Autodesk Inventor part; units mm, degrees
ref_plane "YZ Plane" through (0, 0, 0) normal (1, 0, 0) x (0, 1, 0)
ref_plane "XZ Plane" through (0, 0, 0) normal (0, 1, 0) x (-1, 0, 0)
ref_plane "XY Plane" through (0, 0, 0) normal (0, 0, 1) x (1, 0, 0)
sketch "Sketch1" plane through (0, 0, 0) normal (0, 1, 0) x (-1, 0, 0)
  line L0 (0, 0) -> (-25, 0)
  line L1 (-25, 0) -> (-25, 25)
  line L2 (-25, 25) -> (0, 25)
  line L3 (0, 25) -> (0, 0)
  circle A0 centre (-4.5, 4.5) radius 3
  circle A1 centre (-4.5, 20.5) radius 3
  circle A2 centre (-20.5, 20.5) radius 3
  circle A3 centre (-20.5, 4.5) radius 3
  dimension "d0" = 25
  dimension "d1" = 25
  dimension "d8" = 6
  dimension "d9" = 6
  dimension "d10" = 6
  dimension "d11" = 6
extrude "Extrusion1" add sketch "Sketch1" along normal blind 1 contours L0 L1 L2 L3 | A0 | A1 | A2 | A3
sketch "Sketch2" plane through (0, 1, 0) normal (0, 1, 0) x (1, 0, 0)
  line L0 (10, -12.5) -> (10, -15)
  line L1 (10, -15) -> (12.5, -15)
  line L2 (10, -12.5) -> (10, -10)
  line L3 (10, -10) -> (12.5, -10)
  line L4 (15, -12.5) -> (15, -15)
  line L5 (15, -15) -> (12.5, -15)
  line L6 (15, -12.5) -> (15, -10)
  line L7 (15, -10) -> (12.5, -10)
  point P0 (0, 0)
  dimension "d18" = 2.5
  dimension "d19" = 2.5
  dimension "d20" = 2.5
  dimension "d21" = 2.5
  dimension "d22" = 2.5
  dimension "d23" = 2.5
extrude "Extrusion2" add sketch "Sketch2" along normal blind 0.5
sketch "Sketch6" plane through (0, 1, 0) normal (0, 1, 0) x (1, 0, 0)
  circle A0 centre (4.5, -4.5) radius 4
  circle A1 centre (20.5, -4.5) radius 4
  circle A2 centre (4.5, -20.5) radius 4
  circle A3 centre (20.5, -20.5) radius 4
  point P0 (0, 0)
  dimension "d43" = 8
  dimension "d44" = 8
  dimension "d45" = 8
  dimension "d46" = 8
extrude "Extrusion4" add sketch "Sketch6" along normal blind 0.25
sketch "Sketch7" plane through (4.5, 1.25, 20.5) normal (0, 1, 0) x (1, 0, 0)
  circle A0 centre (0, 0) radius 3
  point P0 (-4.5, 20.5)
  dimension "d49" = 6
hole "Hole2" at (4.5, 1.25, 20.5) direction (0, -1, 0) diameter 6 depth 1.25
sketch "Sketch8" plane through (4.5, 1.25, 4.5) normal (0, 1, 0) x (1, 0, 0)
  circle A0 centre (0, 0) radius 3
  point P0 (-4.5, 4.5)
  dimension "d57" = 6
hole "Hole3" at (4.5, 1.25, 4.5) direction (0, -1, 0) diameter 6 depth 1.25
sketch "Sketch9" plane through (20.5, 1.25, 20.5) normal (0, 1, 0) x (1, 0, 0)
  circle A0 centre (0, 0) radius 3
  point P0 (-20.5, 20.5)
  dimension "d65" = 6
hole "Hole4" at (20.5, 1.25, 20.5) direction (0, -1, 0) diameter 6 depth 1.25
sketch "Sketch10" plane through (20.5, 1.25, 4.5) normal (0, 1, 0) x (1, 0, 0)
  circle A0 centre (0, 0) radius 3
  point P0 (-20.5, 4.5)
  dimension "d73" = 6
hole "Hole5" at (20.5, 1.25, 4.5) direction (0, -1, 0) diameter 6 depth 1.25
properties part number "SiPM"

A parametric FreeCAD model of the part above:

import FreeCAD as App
import Part
import Sketcher


def add_polygon(sketch, points):
    """Adds a closed chain of lines whose ends are joined by coincident constraints."""
    first, n = sketch.GeometryCount, len(points)
    for a, b in zip(points, points[1:] + points[:1]):
        sketch.addGeometry(Part.LineSegment(App.Vector(*a, 0), App.Vector(*b, 0)), False)
    for i in range(n):
        sketch.addConstraint(Sketcher.Constraint("Coincident", first + i, 2, first + (i + 1) % n, 1))

doc = App.newDocument("Part")
body = doc.addObject("PartDesign::Body", "Body")

# Sketch on XZ plane
sketch1 = body.newObject("Sketcher::SketchObject", "Sketch")
sketch1.AttachmentSupport = (doc.getObject("XZ_Plane"), [""])
sketch1.MapMode = "FlatFace"
add_polygon(sketch1, [(25, 0), (0, 0), (0, 25), (25, 25)])  # lines 0-3
sketch1.addConstraint([
    Sketcher.Constraint("Horizontal", 0),
    Sketcher.Constraint("Vertical", 1),
    Sketcher.Constraint("Horizontal", 2),
    Sketcher.Constraint("Vertical", 3),
    Sketcher.Constraint("Coincident", 0, 2, -1, 1),
    Sketcher.Constraint("Equal", 2, 1),
    Sketcher.Constraint("DistanceX", 0, 2, 0, 1, 25.0),
])
pad1 = body.newObject("PartDesign::Pad", "Pad")
pad1.Profile = sketch1
pad1.Length = 1
pad1.Reversed = True

# Sketch on XZ plane
sketch2 = body.newObject("Sketcher::SketchObject", "Sketch001")
sketch2.AttachmentSupport = (doc.getObject("XZ_Plane"), [""])
sketch2.MapMode = "FlatFace"
sketch2.AttachmentOffset = App.Placement(App.Vector(0, 0, -1), App.Rotation())
add_polygon(sketch2, [(10, 10), (10, 15), (15, 15), (15, 10)])  # lines 0-3
sketch2.addConstraint([
    Sketcher.Constraint("Vertical", 0),
    Sketcher.Constraint("Horizontal", 1),
    Sketcher.Constraint("Vertical", 2),
    Sketcher.Constraint("Horizontal", 3),
    Sketcher.Constraint("Equal", 3, 0),
    Sketcher.Constraint("DistanceX", 1, 1, 1, 2, 5.0),
    Sketcher.Constraint("DistanceX", -1, 1, 0, 2, 10.0),
    Sketcher.Constraint("DistanceY", -1, 1, 0, 2, 15.0),
])
pad2 = body.newObject("PartDesign::Pad", "Pad001")
pad2.Profile = sketch2
pad2.Length = 0.5
pad2.Reversed = True

# Sketch on XZ plane
sketch3 = body.newObject("Sketcher::SketchObject", "Sketch002")
sketch3.AttachmentSupport = (doc.getObject("XZ_Plane"), [""])
sketch3.MapMode = "FlatFace"
sketch3.AttachmentOffset = App.Placement(App.Vector(0, 0, -1), App.Rotation())
sketch3.addGeometry([
    Part.Circle(App.Vector(4.5, 4.5, 0), App.Vector(0, 0, 1), 4),
    Part.Circle(App.Vector(20.5, 4.5, 0), App.Vector(0, 0, 1), 4),
    Part.Circle(App.Vector(4.5, 20.5, 0), App.Vector(0, 0, 1), 4),
    Part.Circle(App.Vector(20.5, 20.5, 0), App.Vector(0, 0, 1), 4),
], False)
sketch3.addConstraint([
    Sketcher.Constraint("Equal", 0, 1),
    Sketcher.Constraint("Equal", 1, 2),
    Sketcher.Constraint("Equal", 2, 3),
    Sketcher.Constraint("Horizontal", 0, 3, 1, 3),
    Sketcher.Constraint("Horizontal", 2, 3, 3, 3),
    Sketcher.Constraint("Vertical", 0, 3, 2, 3),
    Sketcher.Constraint("Vertical", 1, 3, 3, 3),
    Sketcher.Constraint("Diameter", 0, 8.0),
    Sketcher.Constraint("DistanceX", 0, 3, 1, 3, 16.0),
    Sketcher.Constraint("DistanceY", 0, 3, 2, 3, 16.0),
    Sketcher.Constraint("DistanceX", -1, 1, 0, 3, 4.5),
    Sketcher.Constraint("DistanceY", -1, 1, 0, 3, 4.5),
])
pad3 = body.newObject("PartDesign::Pad", "Pad002")
pad3.Profile = sketch3
pad3.Length = 0.25
pad3.Reversed = True

# Sketch on XZ plane
sketch4 = body.newObject("Sketcher::SketchObject", "Sketch003")
sketch4.AttachmentSupport = (doc.getObject("XZ_Plane"), [""])
sketch4.MapMode = "FlatFace"
sketch4.AttachmentOffset = App.Placement(App.Vector(0, 0, -1.25), App.Rotation())
sketch4.addGeometry(Part.Circle(App.Vector(4.5, 20.5, 0), App.Vector(0, 0, 1), 3), False)
sketch4.addConstraint([
    Sketcher.Constraint("Diameter", 0, 6.0),
    Sketcher.Constraint("DistanceX", -1, 1, 0, 3, 4.5),
    Sketcher.Constraint("DistanceY", -1, 1, 0, 3, 20.5),
])
doc.recompute()
hole = body.newObject("PartDesign::Hole", "Hole")
hole.Profile = sketch4
hole.ThreadType = "None"
hole.Diameter = 6
hole.DepthType = "Dimension"
hole.Depth = 1.25
hole.DrillPoint = "Flat"
hole.Reversed = True

# Sketch on XZ plane
sketch5 = body.newObject("Sketcher::SketchObject", "Sketch004")
sketch5.AttachmentSupport = (doc.getObject("XZ_Plane"), [""])
sketch5.MapMode = "FlatFace"
sketch5.AttachmentOffset = App.Placement(App.Vector(0, 0, -1.25), App.Rotation())
sketch5.addGeometry(Part.Circle(App.Vector(4.5, 4.5, 0), App.Vector(0, 0, 1), 3), False)
sketch5.addConstraint([
    Sketcher.Constraint("Diameter", 0, 6.0),
    Sketcher.Constraint("DistanceX", -1, 1, 0, 3, 4.5),
    Sketcher.Constraint("DistanceY", -1, 1, 0, 3, 4.5),
])
doc.recompute()
hole2 = body.newObject("PartDesign::Hole", "Hole001")
hole2.Profile = sketch5
hole2.ThreadType = "None"
hole2.Diameter = 6
hole2.DepthType = "Dimension"
hole2.Depth = 1.25
hole2.DrillPoint = "Flat"
hole2.Reversed = True

# Sketch on XZ plane
sketch6 = body.newObject("Sketcher::SketchObject", "Sketch005")
sketch6.AttachmentSupport = (doc.getObject("XZ_Plane"), [""])
sketch6.MapMode = "FlatFace"
sketch6.AttachmentOffset = App.Placement(App.Vector(0, 0, -1.25), App.Rotation())
sketch6.addGeometry(Part.Circle(App.Vector(20.5, 20.5, 0), App.Vector(0, 0, 1), 3), False)
sketch6.addConstraint([
    Sketcher.Constraint("Diameter", 0, 6.0),
    Sketcher.Constraint("DistanceX", -1, 1, 0, 3, 20.5),
    Sketcher.Constraint("DistanceY", -1, 1, 0, 3, 20.5),
])
doc.recompute()
hole3 = body.newObject("PartDesign::Hole", "Hole002")
hole3.Profile = sketch6
hole3.ThreadType = "None"
hole3.Diameter = 6
hole3.DepthType = "Dimension"
hole3.Depth = 1.25
hole3.DrillPoint = "Flat"
hole3.Reversed = True

# Sketch on XZ plane
sketch7 = body.newObject("Sketcher::SketchObject", "Sketch006")
sketch7.AttachmentSupport = (doc.getObject("XZ_Plane"), [""])
sketch7.MapMode = "FlatFace"
sketch7.AttachmentOffset = App.Placement(App.Vector(0, 0, -1.25), App.Rotation())
sketch7.addGeometry(Part.Circle(App.Vector(20.5, 4.5, 0), App.Vector(0, 0, 1), 3), False)
sketch7.addConstraint([
    Sketcher.Constraint("Diameter", 0, 6.0),
    Sketcher.Constraint("DistanceX", -1, 1, 0, 3, 20.5),
    Sketcher.Constraint("DistanceY", -1, 1, 0, 3, 4.5),
])
doc.recompute()
hole4 = body.newObject("PartDesign::Hole", "Hole003")
hole4.Profile = sketch7
hole4.ThreadType = "None"
hole4.Diameter = 6
hole4.DepthType = "Dimension"
hole4.Depth = 1.25
hole4.DrillPoint = "Flat"
hole4.Reversed = True

doc.recompute()
